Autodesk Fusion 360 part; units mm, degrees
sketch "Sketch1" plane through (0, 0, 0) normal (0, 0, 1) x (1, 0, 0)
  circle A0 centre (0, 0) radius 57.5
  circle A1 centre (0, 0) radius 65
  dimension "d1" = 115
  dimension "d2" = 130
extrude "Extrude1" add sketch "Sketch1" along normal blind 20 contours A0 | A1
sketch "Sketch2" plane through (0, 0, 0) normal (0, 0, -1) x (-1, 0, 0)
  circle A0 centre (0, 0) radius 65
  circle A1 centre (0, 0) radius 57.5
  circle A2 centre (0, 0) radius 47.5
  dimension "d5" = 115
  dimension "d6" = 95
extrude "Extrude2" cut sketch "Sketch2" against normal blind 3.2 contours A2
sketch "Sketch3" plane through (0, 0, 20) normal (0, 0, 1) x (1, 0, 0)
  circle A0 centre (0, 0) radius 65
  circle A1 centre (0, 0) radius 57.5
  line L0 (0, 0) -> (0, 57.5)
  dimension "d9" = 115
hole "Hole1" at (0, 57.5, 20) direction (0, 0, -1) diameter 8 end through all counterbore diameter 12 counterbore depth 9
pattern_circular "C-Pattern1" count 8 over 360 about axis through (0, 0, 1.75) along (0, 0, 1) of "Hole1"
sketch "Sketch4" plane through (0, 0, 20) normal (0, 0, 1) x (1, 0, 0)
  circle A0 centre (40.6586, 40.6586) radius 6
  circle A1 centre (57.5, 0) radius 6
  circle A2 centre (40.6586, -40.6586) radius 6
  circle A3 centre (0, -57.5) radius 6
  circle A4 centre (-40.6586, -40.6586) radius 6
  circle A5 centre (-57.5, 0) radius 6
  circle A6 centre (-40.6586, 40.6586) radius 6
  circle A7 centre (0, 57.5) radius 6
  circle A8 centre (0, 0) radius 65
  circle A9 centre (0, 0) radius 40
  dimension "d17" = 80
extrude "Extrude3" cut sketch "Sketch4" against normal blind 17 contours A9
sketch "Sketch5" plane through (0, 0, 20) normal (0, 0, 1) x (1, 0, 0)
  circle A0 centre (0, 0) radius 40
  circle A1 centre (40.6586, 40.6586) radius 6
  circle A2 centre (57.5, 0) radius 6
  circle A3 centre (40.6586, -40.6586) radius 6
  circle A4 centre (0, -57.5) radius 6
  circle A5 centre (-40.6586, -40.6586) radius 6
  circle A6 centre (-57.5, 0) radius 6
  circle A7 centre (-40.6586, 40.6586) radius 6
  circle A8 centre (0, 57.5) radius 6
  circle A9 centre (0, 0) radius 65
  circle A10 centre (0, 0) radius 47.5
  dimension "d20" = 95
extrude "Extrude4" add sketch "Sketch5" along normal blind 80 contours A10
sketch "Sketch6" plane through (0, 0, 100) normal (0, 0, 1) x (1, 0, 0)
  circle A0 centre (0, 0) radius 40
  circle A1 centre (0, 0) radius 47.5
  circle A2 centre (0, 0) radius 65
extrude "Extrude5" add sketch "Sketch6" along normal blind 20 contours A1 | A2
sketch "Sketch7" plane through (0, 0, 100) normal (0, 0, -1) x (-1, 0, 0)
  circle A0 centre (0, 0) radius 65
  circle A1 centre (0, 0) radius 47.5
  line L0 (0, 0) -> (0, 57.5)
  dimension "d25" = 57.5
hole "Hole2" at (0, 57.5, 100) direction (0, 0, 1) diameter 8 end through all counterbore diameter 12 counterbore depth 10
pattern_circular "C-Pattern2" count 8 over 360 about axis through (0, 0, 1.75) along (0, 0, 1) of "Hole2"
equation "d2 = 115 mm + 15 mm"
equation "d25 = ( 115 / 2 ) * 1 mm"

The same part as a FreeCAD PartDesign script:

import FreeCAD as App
import Part
import Sketcher

V = App.Vector
Q = App.Units.Quantity

doc = App.newDocument("Part")
params = doc.addObject("Spreadsheet::Sheet", "Params")
for row, (alias, value) in enumerate([
    ("sketch1_diameter", "130 mm"),
    ("pad1_length", "20 mm"),
    ("sketch2_diameter", "95 mm"),
    ("pocket1_length", "3.2 mm"),
    ("sketch3_diameter", "8 mm"),
    ("hole_diameter", "8 mm"),
    ("hole_cbore_diameter", "12 mm"),
    ("hole_cbore_depth", "9 mm"),
    ("sketch4_diameter", "80 mm"),
    ("pocket2_length", "17 mm"),
    ("sketch5_diameter", "95 mm"),
    ("sketch5_diameter2", "80 mm"),
    ("pad2_length", "80 mm"),
    ("sketch6_diameter", "130 mm"),
    ("sketch6_diameter2", "80 mm"),
    ("pad3_length", "20 mm"),
    ("sketch7_diameter", "8 mm"),
    ("hole2_diameter", "8 mm"),
    ("hole2_cbore_diameter", "12 mm"),
    ("hole2_cbore_depth", "10 mm"),
], start=1):
    params.set(f"A{row}", alias)
    params.set(f"B{row}", "=" + value)
    params.setAlias(f"B{row}", alias)

body = doc.addObject("PartDesign::Body", "Body")

# Sketch on XY plane
sketch1 = body.newObject("Sketcher::SketchObject", "Sketch")
sketch1.AttachmentSupport = (doc.getObject("XY_Plane"), [""])
sketch1.MapMode = "FlatFace"
sketch1.addGeometry(Part.Circle(V(0, 0, 0), V(0, 0, 1), 65), False)
sketch1.addConstraint([
    Sketcher.Constraint("Coincident", 0, 3, -1, 1),
    Sketcher.Constraint("Diameter", 0, Q("130 mm")),
])
sketch1.setExpression("Constraints[1]", "Params.sketch1_diameter")
pad1 = body.newObject("PartDesign::Pad", "Pad")
pad1.Profile = sketch1
pad1.setExpression("Length", "Params.pad1_length")

# Sketch on XY plane
sketch2 = body.newObject("Sketcher::SketchObject", "Sketch001")
sketch2.AttachmentSupport = (doc.getObject("XY_Plane"), [""])
sketch2.MapMode = "FlatFace"
sketch2.addGeometry(Part.Circle(V(0, 0, 0), V(0, 0, 1), 48), False)
sketch2.addConstraint([
    Sketcher.Constraint("Coincident", 0, 3, -1, 1),
    Sketcher.Constraint("Diameter", 0, Q("95 mm")),
])
sketch2.setExpression("Constraints[1]", "Params.sketch2_diameter")
pocket1 = body.newObject("PartDesign::Pocket", "Pocket")
pocket1.Profile = sketch2
pocket1.setExpression("Length", "Params.pocket1_length")
pocket1.Reversed = True

# Sketch on XY plane
sketch3 = body.newObject("Sketcher::SketchObject", "Sketch002")
sketch3.AttachmentSupport = (doc.getObject("XY_Plane"), [""])
sketch3.MapMode = "FlatFace"
sketch3.AttachmentOffset = App.Placement(V(0, 0, 20), App.Rotation())
sketch3.addGeometry(Part.Circle(V(0, 57.5, 0), V(0, 0, 1), 4), False)
sketch3.addConstraint([
    Sketcher.Constraint("PointOnObject", 0, 3, -2),
    Sketcher.Constraint("Diameter", 0, Q("8 mm")),
    Sketcher.Constraint("DistanceY", -1, 1, 0, 3, Q("57.5 mm")),
])
sketch3.setExpression("Constraints[1]", "Params.sketch3_diameter")
doc.recompute()
hole = body.newObject("PartDesign::Hole", "Hole")
hole.Profile = sketch3
hole.ThreadType = "None"
hole.setExpression("Diameter", "Params.hole_diameter")
hole.DepthType = "ThroughAll"
hole.HoleCutType = "Counterbore"
hole.setExpression("HoleCutDiameter", "Params.hole_cbore_diameter")
hole.setExpression("HoleCutDepth", "Params.hole_cbore_depth")
doc.recompute()

polarpattern = body.newObject("PartDesign::PolarPattern", "PolarPattern")
polarpattern.Originals = [hole]
polarpattern.Axis = (doc.getObject("Z_Axis"), [""])
polarpattern.Angle = 360
polarpattern.Occurrences = 8
body.Tip = polarpattern

# Sketch on XY plane
sketch4 = body.newObject("Sketcher::SketchObject", "Sketch003")
sketch4.AttachmentSupport = (doc.getObject("XY_Plane"), [""])
sketch4.MapMode = "FlatFace"
sketch4.AttachmentOffset = App.Placement(V(0, 0, 20), App.Rotation())
sketch4.addGeometry(Part.Circle(V(0, 0, 0), V(0, 0, 1), 40), False)
sketch4.addConstraint([
    Sketcher.Constraint("Coincident", 0, 3, -1, 1),
    Sketcher.Constraint("Diameter", 0, Q("80 mm")),
])
sketch4.setExpression("Constraints[1]", "Params.sketch4_diameter")
pocket2 = body.newObject("PartDesign::Pocket", "Pocket001")
pocket2.Profile = sketch4
pocket2.setExpression("Length", "Params.pocket2_length")

# Sketch on XY plane
sketch5 = body.newObject("Sketcher::SketchObject", "Sketch004")
sketch5.AttachmentSupport = (doc.getObject("XY_Plane"), [""])
sketch5.MapMode = "FlatFace"
sketch5.AttachmentOffset = App.Placement(V(0, 0, 20), App.Rotation())
sketch5.addGeometry([
    Part.Circle(V(0, 0, 0), V(0, 0, 1), 48),
    Part.Circle(V(0, 0, 0), V(0, 0, 1), 40),
], False)
sketch5.addConstraint([
    Sketcher.Constraint("Coincident", 0, 3, -1, 1),
    Sketcher.Constraint("Coincident", 1, 3, -1, 1),
    Sketcher.Constraint("Diameter", 0, Q("95 mm")),
    Sketcher.Constraint("Diameter", 1, Q("80 mm")),
])
sketch5.setExpression("Constraints[2]", "Params.sketch5_diameter")
sketch5.setExpression("Constraints[3]", "Params.sketch5_diameter2")
pad2 = body.newObject("PartDesign::Pad", "Pad001")
pad2.Profile = sketch5
pad2.setExpression("Length", "Params.pad2_length")

# Sketch on XY plane
sketch6 = body.newObject("Sketcher::SketchObject", "Sketch005")
sketch6.AttachmentSupport = (doc.getObject("XY_Plane"), [""])
sketch6.MapMode = "FlatFace"
sketch6.AttachmentOffset = App.Placement(V(0, 0, 100), App.Rotation())
sketch6.addGeometry([
    Part.Circle(V(0, 0, 0), V(0, 0, 1), 65),
    Part.Circle(V(0, 0, 0), V(0, 0, 1), 40),
], False)
sketch6.addConstraint([
    Sketcher.Constraint("Coincident", 0, 3, -1, 1),
    Sketcher.Constraint("Coincident", 1, 3, -1, 1),
    Sketcher.Constraint("Diameter", 0, Q("130 mm")),
    Sketcher.Constraint("Diameter", 1, Q("80 mm")),
])
sketch6.setExpression("Constraints[2]", "Params.sketch6_diameter")
sketch6.setExpression("Constraints[3]", "Params.sketch6_diameter2")
pad3 = body.newObject("PartDesign::Pad", "Pad002")
pad3.Profile = sketch6
pad3.setExpression("Length", "Params.pad3_length")

# Sketch on XY plane
sketch7 = body.newObject("Sketcher::SketchObject", "Sketch006")
sketch7.AttachmentSupport = (doc.getObject("XY_Plane"), [""])
sketch7.MapMode = "FlatFace"
sketch7.AttachmentOffset = App.Placement(V(0, 0, 100), App.Rotation())
sketch7.addGeometry(Part.Circle(V(0, 57.5, 0), V(0, 0, 1), 4), False)
sketch7.addConstraint([
    Sketcher.Constraint("PointOnObject", 0, 3, -2),
    Sketcher.Constraint("Diameter", 0, Q("8 mm")),
    Sketcher.Constraint("DistanceY", -1, 1, 0, 3, Q("57.5 mm")),
])
sketch7.setExpression("Constraints[1]", "Params.sketch7_diameter")
doc.recompute()
hole2 = body.newObject("PartDesign::Hole", "Hole001")
hole2.Profile = sketch7
hole2.ThreadType = "None"
hole2.setExpression("Diameter", "Params.hole2_diameter")
hole2.DepthType = "ThroughAll"
hole2.HoleCutType = "Counterbore"
hole2.setExpression("HoleCutDiameter", "Params.hole2_cbore_diameter")
hole2.setExpression("HoleCutDepth", "Params.hole2_cbore_depth")
hole2.Reversed = True
doc.recompute()

polarpattern2 = body.newObject("PartDesign::PolarPattern", "PolarPattern001")
polarpattern2.Originals = [hole2]
polarpattern2.Axis = (doc.getObject("Z_Axis"), [""])
polarpattern2.Angle = 360
polarpattern2.Occurrences = 8
body.Tip = polarpattern2

doc.recompute()
